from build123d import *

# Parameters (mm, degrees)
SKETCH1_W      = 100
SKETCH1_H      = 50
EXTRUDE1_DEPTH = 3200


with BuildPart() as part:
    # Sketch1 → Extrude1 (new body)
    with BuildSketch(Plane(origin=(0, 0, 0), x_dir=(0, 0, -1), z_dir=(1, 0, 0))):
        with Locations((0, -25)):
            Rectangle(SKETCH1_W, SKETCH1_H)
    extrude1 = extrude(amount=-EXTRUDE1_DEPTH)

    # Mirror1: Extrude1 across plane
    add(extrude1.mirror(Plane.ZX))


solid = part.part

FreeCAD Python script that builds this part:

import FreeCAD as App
import Part
import Sketcher

V = App.Vector

doc = App.newDocument("Part")
body = doc.addObject("PartDesign::Body", "Body")

# Sketch on YZ plane
sketch1 = doc.addObject("Sketcher::SketchObject", "Sketch")
body.addObject(sketch1)
sketch1.AttachmentSupport = (doc.YZ_Plane, [""])
sketch1.MapMode = "FlatFace"
sketch1.addGeometry([
    Part.LineSegment(V(0, 50, 0), V(-50, 50, 0)),
    Part.LineSegment(V(-50, 50, 0), V(-50, -50, 0)),
    Part.LineSegment(V(-50, -50, 0), V(0, -50, 0)),
    Part.LineSegment(V(0, -50, 0), V(0, 50, 0)),
], False)
sketch1.addConstraint([
    Sketcher.Constraint("Coincident", 0, 2, 1, 1),
    Sketcher.Constraint("Coincident", 1, 2, 2, 1),
    Sketcher.Constraint("Coincident", 2, 2, 3, 1),
    Sketcher.Constraint("Coincident", 3, 2, 0, 1),
    Sketcher.Constraint("Horizontal", 0),
    Sketcher.Constraint("Vertical", 1),
    Sketcher.Constraint("Horizontal", 2),
    Sketcher.Constraint("Vertical", 3),
    Sketcher.Constraint("Symmetric", 2, 2, 3, 2, -1, 1),
    Sketcher.Constraint("DistanceX", 0, 2, 0, 1, 50.0),
    Sketcher.Constraint("DistanceY", 1, 2, 1, 1, 100.0),
])
pad1 = doc.addObject("PartDesign::Pad", "Pad")
body.addObject(pad1)
pad1.Profile = sketch1
pad1.Length = 3200
pad1.Reversed = True
doc.recompute()

mirrored = doc.addObject("PartDesign::Mirrored", "Mirrored")
body.addObject(mirrored)
mirrored.Originals = [pad1]
mirrored.MirrorPlane = (doc.XZ_Plane, [""])
body.Tip = mirrored

doc.recompute()
